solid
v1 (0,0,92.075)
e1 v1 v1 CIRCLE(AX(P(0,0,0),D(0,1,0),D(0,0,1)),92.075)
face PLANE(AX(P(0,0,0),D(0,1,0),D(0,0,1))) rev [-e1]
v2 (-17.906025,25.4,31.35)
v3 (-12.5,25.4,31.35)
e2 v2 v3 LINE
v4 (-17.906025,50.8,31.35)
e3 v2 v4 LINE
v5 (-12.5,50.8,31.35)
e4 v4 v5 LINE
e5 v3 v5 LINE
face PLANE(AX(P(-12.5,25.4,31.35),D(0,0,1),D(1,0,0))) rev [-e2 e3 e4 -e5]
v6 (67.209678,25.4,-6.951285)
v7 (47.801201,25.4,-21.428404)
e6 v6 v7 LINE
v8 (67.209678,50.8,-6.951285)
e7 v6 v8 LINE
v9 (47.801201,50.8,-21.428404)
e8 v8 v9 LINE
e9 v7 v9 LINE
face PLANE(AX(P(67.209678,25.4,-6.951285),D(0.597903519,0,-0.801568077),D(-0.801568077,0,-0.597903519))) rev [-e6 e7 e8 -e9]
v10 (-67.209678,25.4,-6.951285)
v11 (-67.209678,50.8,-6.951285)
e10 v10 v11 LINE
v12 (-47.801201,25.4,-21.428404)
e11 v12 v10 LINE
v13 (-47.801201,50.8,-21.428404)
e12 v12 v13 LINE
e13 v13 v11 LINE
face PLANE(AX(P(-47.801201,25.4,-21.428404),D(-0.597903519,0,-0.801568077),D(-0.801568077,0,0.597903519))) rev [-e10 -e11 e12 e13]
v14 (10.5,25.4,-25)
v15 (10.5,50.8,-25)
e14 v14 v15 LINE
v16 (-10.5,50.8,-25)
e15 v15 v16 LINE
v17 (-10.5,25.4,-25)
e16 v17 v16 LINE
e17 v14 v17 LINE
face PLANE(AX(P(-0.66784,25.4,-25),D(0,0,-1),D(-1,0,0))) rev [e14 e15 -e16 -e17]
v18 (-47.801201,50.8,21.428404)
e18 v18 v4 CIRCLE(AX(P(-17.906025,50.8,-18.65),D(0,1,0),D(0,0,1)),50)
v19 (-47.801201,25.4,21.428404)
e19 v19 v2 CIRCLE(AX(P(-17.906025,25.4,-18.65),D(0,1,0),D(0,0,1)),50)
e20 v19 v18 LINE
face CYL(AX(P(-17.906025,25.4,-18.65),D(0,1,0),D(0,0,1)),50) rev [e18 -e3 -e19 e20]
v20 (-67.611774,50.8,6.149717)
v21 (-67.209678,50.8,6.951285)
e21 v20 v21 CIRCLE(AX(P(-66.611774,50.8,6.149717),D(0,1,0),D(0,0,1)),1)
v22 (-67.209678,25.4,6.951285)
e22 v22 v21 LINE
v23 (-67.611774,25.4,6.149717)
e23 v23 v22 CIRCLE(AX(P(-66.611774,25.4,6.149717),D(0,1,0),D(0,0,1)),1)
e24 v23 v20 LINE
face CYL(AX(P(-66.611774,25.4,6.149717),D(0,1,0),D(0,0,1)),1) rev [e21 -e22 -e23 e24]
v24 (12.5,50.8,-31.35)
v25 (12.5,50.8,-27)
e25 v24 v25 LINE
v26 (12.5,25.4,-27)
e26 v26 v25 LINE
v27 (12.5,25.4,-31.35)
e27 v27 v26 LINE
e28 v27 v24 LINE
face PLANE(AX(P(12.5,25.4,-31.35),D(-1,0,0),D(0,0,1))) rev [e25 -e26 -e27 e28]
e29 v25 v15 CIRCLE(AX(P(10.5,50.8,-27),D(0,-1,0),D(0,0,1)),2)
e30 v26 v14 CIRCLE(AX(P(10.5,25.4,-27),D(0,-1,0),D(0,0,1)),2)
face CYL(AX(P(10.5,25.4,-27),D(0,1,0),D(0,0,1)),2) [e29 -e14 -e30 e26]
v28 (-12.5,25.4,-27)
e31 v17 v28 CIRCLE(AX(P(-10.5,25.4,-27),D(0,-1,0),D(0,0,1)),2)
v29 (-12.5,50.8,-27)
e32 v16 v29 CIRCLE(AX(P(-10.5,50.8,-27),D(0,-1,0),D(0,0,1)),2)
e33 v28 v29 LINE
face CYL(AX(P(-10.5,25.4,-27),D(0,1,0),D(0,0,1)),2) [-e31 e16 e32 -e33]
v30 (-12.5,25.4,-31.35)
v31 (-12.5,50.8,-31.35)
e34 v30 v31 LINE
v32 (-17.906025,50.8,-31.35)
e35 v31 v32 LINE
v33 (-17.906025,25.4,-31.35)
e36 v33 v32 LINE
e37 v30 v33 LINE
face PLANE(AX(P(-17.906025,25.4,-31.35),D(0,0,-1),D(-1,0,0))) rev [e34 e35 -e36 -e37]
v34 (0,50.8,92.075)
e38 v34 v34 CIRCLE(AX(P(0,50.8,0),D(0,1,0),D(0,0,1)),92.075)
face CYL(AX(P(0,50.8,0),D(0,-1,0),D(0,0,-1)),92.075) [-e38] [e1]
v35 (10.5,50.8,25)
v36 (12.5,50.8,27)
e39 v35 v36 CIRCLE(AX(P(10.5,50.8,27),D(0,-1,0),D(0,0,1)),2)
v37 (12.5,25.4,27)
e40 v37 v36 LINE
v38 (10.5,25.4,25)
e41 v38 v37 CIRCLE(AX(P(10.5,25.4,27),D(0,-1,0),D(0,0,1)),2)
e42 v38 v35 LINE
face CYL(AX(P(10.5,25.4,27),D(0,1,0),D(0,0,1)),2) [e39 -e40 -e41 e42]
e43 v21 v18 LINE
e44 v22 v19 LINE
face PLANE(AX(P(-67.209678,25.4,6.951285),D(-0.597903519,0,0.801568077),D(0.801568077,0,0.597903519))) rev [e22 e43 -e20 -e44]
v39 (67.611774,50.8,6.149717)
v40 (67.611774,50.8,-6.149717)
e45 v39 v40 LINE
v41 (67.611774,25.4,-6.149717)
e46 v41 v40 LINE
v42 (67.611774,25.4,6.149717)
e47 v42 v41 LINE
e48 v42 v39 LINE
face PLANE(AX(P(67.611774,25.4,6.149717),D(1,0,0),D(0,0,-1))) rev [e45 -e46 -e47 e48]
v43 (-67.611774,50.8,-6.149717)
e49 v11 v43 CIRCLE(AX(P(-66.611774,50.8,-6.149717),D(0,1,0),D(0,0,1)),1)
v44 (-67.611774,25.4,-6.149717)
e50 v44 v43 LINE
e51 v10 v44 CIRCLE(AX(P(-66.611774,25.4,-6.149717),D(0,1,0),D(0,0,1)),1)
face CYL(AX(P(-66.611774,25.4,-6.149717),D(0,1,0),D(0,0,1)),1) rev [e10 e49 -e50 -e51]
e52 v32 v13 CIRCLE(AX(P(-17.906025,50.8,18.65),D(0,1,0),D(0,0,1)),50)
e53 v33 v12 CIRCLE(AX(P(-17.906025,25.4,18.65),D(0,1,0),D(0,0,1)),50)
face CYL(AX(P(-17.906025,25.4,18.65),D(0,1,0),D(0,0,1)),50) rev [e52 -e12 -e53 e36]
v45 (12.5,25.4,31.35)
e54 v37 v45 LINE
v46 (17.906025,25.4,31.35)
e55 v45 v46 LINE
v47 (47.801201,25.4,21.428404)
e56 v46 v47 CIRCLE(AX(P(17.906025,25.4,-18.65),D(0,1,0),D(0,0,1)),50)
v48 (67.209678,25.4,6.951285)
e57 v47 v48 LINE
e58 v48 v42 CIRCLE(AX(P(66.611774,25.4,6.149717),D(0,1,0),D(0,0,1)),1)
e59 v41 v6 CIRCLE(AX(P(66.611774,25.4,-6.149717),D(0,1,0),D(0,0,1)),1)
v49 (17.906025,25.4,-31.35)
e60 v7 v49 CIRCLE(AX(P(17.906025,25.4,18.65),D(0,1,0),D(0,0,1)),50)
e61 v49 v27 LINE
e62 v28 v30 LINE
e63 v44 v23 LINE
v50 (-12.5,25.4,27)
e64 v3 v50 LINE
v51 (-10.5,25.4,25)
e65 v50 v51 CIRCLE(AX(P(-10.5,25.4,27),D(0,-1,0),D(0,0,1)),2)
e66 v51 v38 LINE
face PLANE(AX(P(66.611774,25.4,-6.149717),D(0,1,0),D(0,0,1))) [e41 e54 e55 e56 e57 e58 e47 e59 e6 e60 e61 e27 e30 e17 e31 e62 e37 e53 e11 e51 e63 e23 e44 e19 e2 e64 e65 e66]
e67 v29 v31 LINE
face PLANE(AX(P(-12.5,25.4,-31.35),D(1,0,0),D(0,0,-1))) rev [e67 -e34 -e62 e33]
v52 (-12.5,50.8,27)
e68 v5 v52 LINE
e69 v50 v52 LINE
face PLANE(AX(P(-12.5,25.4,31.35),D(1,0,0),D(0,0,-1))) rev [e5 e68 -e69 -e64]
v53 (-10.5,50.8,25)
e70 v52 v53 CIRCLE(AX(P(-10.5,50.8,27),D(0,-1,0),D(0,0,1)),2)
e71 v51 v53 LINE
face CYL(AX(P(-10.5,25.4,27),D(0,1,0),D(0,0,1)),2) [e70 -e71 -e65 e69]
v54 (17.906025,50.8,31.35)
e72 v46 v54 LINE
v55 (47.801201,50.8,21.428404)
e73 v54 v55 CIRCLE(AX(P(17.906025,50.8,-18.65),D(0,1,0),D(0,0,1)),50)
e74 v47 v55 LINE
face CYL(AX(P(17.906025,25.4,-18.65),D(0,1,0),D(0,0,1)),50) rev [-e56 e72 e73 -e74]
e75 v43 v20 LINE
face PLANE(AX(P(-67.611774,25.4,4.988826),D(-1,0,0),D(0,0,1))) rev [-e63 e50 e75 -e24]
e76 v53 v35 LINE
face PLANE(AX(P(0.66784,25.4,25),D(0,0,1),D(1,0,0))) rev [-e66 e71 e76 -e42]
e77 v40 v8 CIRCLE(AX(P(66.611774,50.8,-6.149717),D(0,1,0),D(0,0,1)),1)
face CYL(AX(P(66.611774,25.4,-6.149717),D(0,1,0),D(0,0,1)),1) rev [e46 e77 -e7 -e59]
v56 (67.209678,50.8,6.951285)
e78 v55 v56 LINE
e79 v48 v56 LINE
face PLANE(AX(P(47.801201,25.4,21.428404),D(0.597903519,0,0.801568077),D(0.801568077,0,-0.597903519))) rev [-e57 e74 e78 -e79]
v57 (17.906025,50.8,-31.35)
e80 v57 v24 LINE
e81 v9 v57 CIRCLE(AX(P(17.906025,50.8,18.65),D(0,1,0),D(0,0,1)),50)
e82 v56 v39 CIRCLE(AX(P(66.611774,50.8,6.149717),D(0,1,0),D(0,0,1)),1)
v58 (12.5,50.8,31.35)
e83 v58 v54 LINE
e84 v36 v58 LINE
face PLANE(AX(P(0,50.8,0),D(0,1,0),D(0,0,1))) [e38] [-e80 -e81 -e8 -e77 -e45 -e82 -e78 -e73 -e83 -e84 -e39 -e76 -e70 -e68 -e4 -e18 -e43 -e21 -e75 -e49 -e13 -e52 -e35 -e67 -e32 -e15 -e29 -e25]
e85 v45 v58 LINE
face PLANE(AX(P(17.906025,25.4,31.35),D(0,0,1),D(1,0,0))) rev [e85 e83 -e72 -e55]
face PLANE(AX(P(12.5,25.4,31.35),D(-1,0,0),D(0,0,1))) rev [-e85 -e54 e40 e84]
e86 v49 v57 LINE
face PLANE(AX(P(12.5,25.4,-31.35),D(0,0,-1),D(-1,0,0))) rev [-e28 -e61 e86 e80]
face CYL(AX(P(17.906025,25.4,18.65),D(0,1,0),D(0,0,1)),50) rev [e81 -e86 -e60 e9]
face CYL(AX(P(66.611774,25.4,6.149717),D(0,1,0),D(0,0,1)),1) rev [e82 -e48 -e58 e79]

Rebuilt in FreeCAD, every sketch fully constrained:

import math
import FreeCAD as App
import Part
import Sketcher

doc = App.newDocument("Part")
body = doc.addObject("PartDesign::Body", "Body")

# Sketch on XZ plane
sketch1 = body.newObject("Sketcher::SketchObject", "Sketch")
sketch1.AttachmentSupport = (doc.getObject("XZ_Plane"), [""])
sketch1.MapMode = "FlatFace"
sketch1.addGeometry(Part.Circle(App.Vector(0, 0, 0), App.Vector(0, 0, 1), 92.075), False)
sketch1.addConstraint(Sketcher.Constraint("Coincident", 0, 3, -1, 1))
sketch1.addConstraint(Sketcher.Constraint("Diameter", 0, 184.15))
pad1 = body.newObject("PartDesign::Pad", "Pad")
pad1.Profile = sketch1
pad1.Length = 50.8
pad1.Reversed = True

# Sketch on XZ plane
sketch2 = body.newObject("Sketcher::SketchObject", "Sketch001")
sketch2.AttachmentSupport = (doc.getObject("XZ_Plane"), [""])
sketch2.MapMode = "FlatFace"
sketch2.AttachmentOffset = App.Placement(App.Vector(0, 0, -50.8), App.Rotation())
sketch2.addGeometry(Part.LineSegment(App.Vector(-67.611774, -6.149717, 0), App.Vector(-67.611774, 6.149717, 0)), False)
sketch2.addGeometry(Part.ArcOfCircle(Part.Circle(App.Vector(-66.611774, 6.149717, 0), App.Vector(0, 0, 1), 1), math.radians(126.719895), math.radians(180)), False)
sketch2.addGeometry(Part.LineSegment(App.Vector(-67.209678, 6.951285, 0), App.Vector(-47.801201, 21.428404, 0)), False)
sketch2.addGeometry(Part.ArcOfCircle(Part.Circle(App.Vector(-17.906025, -18.65, 0), App.Vector(0, 0, 1), 50), math.radians(90), math.radians(126.719895)), False)
sketch2.addGeometry(Part.LineSegment(App.Vector(-17.906025, 31.35, 0), App.Vector(-12.5, 31.35, 0)), False)
sketch2.addGeometry(Part.LineSegment(App.Vector(-12.5, 31.35, 0), App.Vector(-12.5, 27, 0)), False)
sketch2.addGeometry(Part.ArcOfCircle(Part.Circle(App.Vector(-10.5, 27, 0), App.Vector(0, 0, 1), 2), math.radians(-180), math.radians(-90)), False)
sketch2.addGeometry(Part.LineSegment(App.Vector(-10.5, 25, 0), App.Vector(10.5, 25, 0)), False)
sketch2.addGeometry(Part.ArcOfCircle(Part.Circle(App.Vector(10.5, 27, 0), App.Vector(0, 0, 1), 2), math.radians(-90), math.radians(0)), False)
sketch2.addGeometry(Part.LineSegment(App.Vector(12.5, 27, 0), App.Vector(12.5, 31.35, 0)), False)
sketch2.addGeometry(Part.LineSegment(App.Vector(12.5, 31.35, 0), App.Vector(17.906025, 31.35, 0)), False)
sketch2.addGeometry(Part.ArcOfCircle(Part.Circle(App.Vector(17.906025, -18.65, 0), App.Vector(0, 0, 1), 50), math.radians(53.280105), math.radians(90)), False)
sketch2.addGeometry(Part.LineSegment(App.Vector(47.801201, 21.428404, 0), App.Vector(67.209678, 6.951285, 0)), False)
sketch2.addGeometry(Part.ArcOfCircle(Part.Circle(App.Vector(66.611774, 6.149717, 0), App.Vector(0, 0, 1), 1), math.radians(0), math.radians(53.280105)), False)
sketch2.addGeometry(Part.LineSegment(App.Vector(67.611774, 6.149717, 0), App.Vector(67.611774, -6.149717, 0)), False)
sketch2.addGeometry(Part.ArcOfCircle(Part.Circle(App.Vector(66.611774, -6.149717, 0), App.Vector(0, 0, 1), 1), math.radians(-53.280105), math.radians(0)), False)
sketch2.addGeometry(Part.LineSegment(App.Vector(67.209678, -6.951285, 0), App.Vector(47.801201, -21.428404, 0)), False)
sketch2.addGeometry(Part.ArcOfCircle(Part.Circle(App.Vector(17.906025, 18.65, 0), App.Vector(0, 0, 1), 50), math.radians(-90), math.radians(-53.280105)), False)
sketch2.addGeometry(Part.LineSegment(App.Vector(17.906025, -31.35, 0), App.Vector(12.5, -31.35, 0)), False)
sketch2.addGeometry(Part.LineSegment(App.Vector(12.5, -31.35, 0), App.Vector(12.5, -27, 0)), False)
sketch2.addGeometry(Part.ArcOfCircle(Part.Circle(App.Vector(10.5, -27, 0), App.Vector(0, 0, 1), 2), math.radians(0), math.radians(90)), False)
sketch2.addGeometry(Part.LineSegment(App.Vector(10.5, -25, 0), App.Vector(-10.5, -25, 0)), False)
sketch2.addGeometry(Part.ArcOfCircle(Part.Circle(App.Vector(-10.5, -27, 0), App.Vector(0, 0, 1), 2), math.radians(90), math.radians(180)), False)
sketch2.addGeometry(Part.LineSegment(App.Vector(-12.5, -27, 0), App.Vector(-12.5, -31.35, 0)), False)
sketch2.addGeometry(Part.LineSegment(App.Vector(-12.5, -31.35, 0), App.Vector(-17.906025, -31.35, 0)), False)
sketch2.addGeometry(Part.ArcOfCircle(Part.Circle(App.Vector(-17.906025, 18.65, 0), App.Vector(0, 0, 1), 50), math.radians(-126.719895), math.radians(-90)), False)
sketch2.addGeometry(Part.LineSegment(App.Vector(-47.801201, -21.428404, 0), App.Vector(-67.209678, -6.951285, 0)), False)
sketch2.addGeometry(Part.ArcOfCircle(Part.Circle(App.Vector(-66.611774, -6.149717, 0), App.Vector(0, 0, 1), 1), math.radians(180), math.radians(233.280105)), False)
sketch2.addConstraint(Sketcher.Constraint("Tangent", 0, 2, 1, 2))
sketch2.addConstraint(Sketcher.Constraint("Tangent", 1, 1, 2, 1))
sketch2.addConstraint(Sketcher.Constraint("Tangent", 2, 2, 3, 2))
sketch2.addConstraint(Sketcher.Constraint("Tangent", 3, 1, 4, 1))
sketch2.addConstraint(Sketcher.Constraint("Coincident", 4, 2, 5, 1))
sketch2.addConstraint(Sketcher.Constraint("Tangent", 5, 2, 6, 1))
sketch2.addConstraint(Sketcher.Constraint("Tangent", 6, 2, 7, 1))
sketch2.addConstraint(Sketcher.Constraint("Tangent", 7, 2, 8, 1))
sketch2.addConstraint(Sketcher.Constraint("Tangent", 8, 2, 9, 1))
sketch2.addConstraint(Sketcher.Constraint("Coincident", 9, 2, 10, 1))
sketch2.addConstraint(Sketcher.Constraint("Tangent", 10, 2, 11, 2))
sketch2.addConstraint(Sketcher.Constraint("Tangent", 11, 1, 12, 1))
sketch2.addConstraint(Sketcher.Constraint("Tangent", 12, 2, 13, 2))
sketch2.addConstraint(Sketcher.Constraint("Tangent", 13, 1, 14, 1))
sketch2.addConstraint(Sketcher.Constraint("Tangent", 14, 2, 15, 2))
sketch2.addConstraint(Sketcher.Constraint("Tangent", 15, 1, 16, 1))
sketch2.addConstraint(Sketcher.Constraint("Tangent", 16, 2, 17, 2))
sketch2.addConstraint(Sketcher.Constraint("Tangent", 17, 1, 18, 1))
sketch2.addConstraint(Sketcher.Constraint("Coincident", 18, 2, 19, 1))
sketch2.addConstraint(Sketcher.Constraint("Tangent", 19, 2, 20, 1))
sketch2.addConstraint(Sketcher.Constraint("Tangent", 20, 2, 21, 1))
sketch2.addConstraint(Sketcher.Constraint("Tangent", 21, 2, 22, 1))
sketch2.addConstraint(Sketcher.Constraint("Tangent", 22, 2, 23, 1))
sketch2.addConstraint(Sketcher.Constraint("Coincident", 23, 2, 24, 1))
sketch2.addConstraint(Sketcher.Constraint("Tangent", 24, 2, 25, 2))
sketch2.addConstraint(Sketcher.Constraint("Tangent", 25, 1, 26, 1))
sketch2.addConstraint(Sketcher.Constraint("Tangent", 26, 2, 27, 2))
sketch2.addConstraint(Sketcher.Constraint("Tangent", 27, 1, 0, 1))
sketch2.addConstraint(Sketcher.Constraint("Vertical", 0))
sketch2.addConstraint(Sketcher.Constraint("Horizontal", 4))
sketch2.addConstraint(Sketcher.Constraint("Vertical", 5))
sketch2.addConstraint(Sketcher.Constraint("Horizontal", 7))
sketch2.addConstraint(Sketcher.Constraint("Vertical", 9))
sketch2.addConstraint(Sketcher.Constraint("Horizontal", 10))
sketch2.addConstraint(Sketcher.Constraint("Vertical", 14))
sketch2.addConstraint(Sketcher.Constraint("Horizontal", 18))
sketch2.addConstraint(Sketcher.Constraint("Vertical", 19))
sketch2.addConstraint(Sketcher.Constraint("Horizontal", 21))
sketch2.addConstraint(Sketcher.Constraint("Vertical", 23))
sketch2.addConstraint(Sketcher.Constraint("Horizontal", 24))
sketch2.addConstraint(Sketcher.Constraint("Equal", 6, 8))
sketch2.addConstraint(Sketcher.Constraint("Equal", 3, 11))
sketch2.addConstraint(Sketcher.Constraint("Equal", 1, 13))
sketch2.addConstraint(Sketcher.Constraint("Equal", 13, 15))
sketch2.addConstraint(Sketcher.Constraint("Equal", 11, 17))
sketch2.addConstraint(Sketcher.Constraint("Equal", 8, 20))
sketch2.addConstraint(Sketcher.Constraint("Equal", 20, 22))
sketch2.addConstraint(Sketcher.Constraint("Equal", 17, 25))
sketch2.addConstraint(Sketcher.Constraint("Equal", 15, 27))
sketch2.addConstraint(Sketcher.Constraint("Symmetric", 1, 3, 15, 3, -1, 1))
sketch2.addConstraint(Sketcher.Constraint("Symmetric", 3, 3, 17, 3, -1, 1))
sketch2.addConstraint(Sketcher.Constraint("Symmetric", 6, 3, 20, 3, -1, 1))
sketch2.addConstraint(Sketcher.Constraint("Symmetric", 11, 3, 25, 3, -1, 1))
sketch2.addConstraint(Sketcher.Constraint("Symmetric", 3, 3, 11, 3, -2))
sketch2.addConstraint(Sketcher.Constraint("Parallel", 12, 26))
sketch2.addConstraint(Sketcher.Constraint("Horizontal", 1, 3, 13, 3))
sketch2.addConstraint(Sketcher.Constraint("Vertical", 8, 3, 20, 3))
sketch2.addConstraint(Sketcher.Constraint("Vertical", 6, 3, 22, 3))
sketch2.addConstraint(Sketcher.Constraint("Radius", 1, 1.0))
sketch2.addConstraint(Sketcher.Constraint("Radius", 3, 50.0))
sketch2.addConstraint(Sketcher.Constraint("Radius", 6, 2.0))
sketch2.addConstraint(Sketcher.Constraint("DistanceX", 7, 1, 7, 2, 21.0))
sketch2.addConstraint(Sketcher.Constraint("DistanceY", -1, 1, 6, 3, 27.0))
sketch2.addConstraint(Sketcher.Constraint("DistanceY", 5, 2, 5, 1, 4.35))
sketch2.addConstraint(Sketcher.Constraint("DistanceY", 27, 3, 1, 1, 13.101001))
sketch2.addConstraint(Sketcher.Constraint("DistanceX", 2, 2, -1, 1, 47.801201))
sketch2.addConstraint(Sketcher.Constraint("DistanceX", 1, 3, 11, 3, 84.517799))
pocket1 = body.newObject("PartDesign::Pocket", "Pocket")
pocket1.Profile = sketch2
pocket1.Length = 25.4
pocket1.Reversed = True

doc.recompute()
